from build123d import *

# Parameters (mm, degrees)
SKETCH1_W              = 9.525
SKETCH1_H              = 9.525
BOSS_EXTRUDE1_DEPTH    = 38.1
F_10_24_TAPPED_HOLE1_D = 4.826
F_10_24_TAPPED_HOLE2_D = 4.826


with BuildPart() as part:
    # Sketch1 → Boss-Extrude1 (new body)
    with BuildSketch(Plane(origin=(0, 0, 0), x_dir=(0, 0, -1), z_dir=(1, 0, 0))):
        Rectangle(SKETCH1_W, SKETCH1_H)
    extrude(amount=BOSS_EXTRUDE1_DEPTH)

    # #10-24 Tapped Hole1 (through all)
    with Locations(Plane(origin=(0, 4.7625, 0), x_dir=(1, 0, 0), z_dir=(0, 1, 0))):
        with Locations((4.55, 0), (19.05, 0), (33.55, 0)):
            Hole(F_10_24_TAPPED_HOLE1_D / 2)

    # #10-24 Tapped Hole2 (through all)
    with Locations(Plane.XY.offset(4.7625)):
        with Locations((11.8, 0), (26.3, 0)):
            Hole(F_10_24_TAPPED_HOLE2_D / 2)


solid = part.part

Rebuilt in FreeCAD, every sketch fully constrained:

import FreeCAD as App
import Part
import Sketcher
from FreeCAD import Vector
Q = App.Units.Quantity

doc = App.newDocument("Part")
body = doc.addObject("PartDesign::Body", "Body")

sketch1 = body.newObject("Sketcher::SketchObject", "Sketch")
sketch1.AttachmentSupport = (doc.getObject("YZ_Plane"), [""])
sketch1.MapMode = "FlatFace"
sketch1.addGeometry([
    Part.LineSegment(Vector(5, 5, 0), Vector(-5, 5, 0)),
    Part.LineSegment(Vector(-5, 5, 0), Vector(-5, -5, 0)),
    Part.LineSegment(Vector(-5, -5, 0), Vector(5, -5, 0)),
    Part.LineSegment(Vector(5, -5, 0), Vector(5, 5, 0)),
], False)
sketch1.addConstraint([
    Sketcher.Constraint("Coincident", 0, 2, 1, 1),
    Sketcher.Constraint("Coincident", 1, 2, 2, 1),
    Sketcher.Constraint("Coincident", 2, 2, 3, 1),
    Sketcher.Constraint("Coincident", 3, 2, 0, 1),
    Sketcher.Constraint("Horizontal", 0),
    Sketcher.Constraint("Vertical", 1),
    Sketcher.Constraint("Horizontal", 2),
    Sketcher.Constraint("Vertical", 3),
    Sketcher.Constraint("Symmetric", 0, 2, 2, 2, -1, 1),
    Sketcher.Constraint("Equal", 2, 1),
    Sketcher.Constraint("DistanceX", 0, 2, 0, 1, Q("0.375 in")),
])
pad1 = body.newObject("PartDesign::Pad", "Pad")
pad1.Profile = sketch1
pad1.Length = Q("1.5 in")

sketch2 = body.newObject("Sketcher::SketchObject", "Sketch001")
sketch2.AttachmentSupport = (doc.getObject("XZ_Plane"), [""])
sketch2.MapMode = "FlatFace"
sketch2.AttachmentOffset = App.Placement(Vector(0, 0, -0.1875 * 25.4), App.Rotation())
sketch2.addGeometry([
    Part.Circle(Vector(4.5, 0, 0), Vector(0, 0, 1), 2.4),
    Part.Circle(Vector(19.1, 0, 0), Vector(0, 0, 1), 2.4),
    Part.Circle(Vector(33.5, 0, 0), Vector(0, 0, 1), 2.4),
], False)
sketch2.addConstraint([
    Sketcher.Constraint("Equal", 0, 1),
    Sketcher.Constraint("Equal", 1, 2),
    Sketcher.Constraint("PointOnObject", 0, 3, -1),
    Sketcher.Constraint("PointOnObject", 1, 3, -1),
    Sketcher.Constraint("PointOnObject", 2, 3, -1),
    Sketcher.Constraint("Diameter", 0, Q("0.19 in")),
    Sketcher.Constraint("DistanceX", -1, 1, 1, 3, Q("0.75 in")),
    Sketcher.Constraint("DistanceX", -1, 1, 0, 3, 4.55),
    Sketcher.Constraint("DistanceX", -1, 1, 2, 3, 33.55),
])
doc.recompute()
hole = body.newObject("PartDesign::Hole", "Hole")
hole.Profile = sketch2
hole.ThreadType = "None"
hole.Diameter = Q("0.19 in")
hole.DepthType = "ThroughAll"
hole.Reversed = True

sketch3 = body.newObject("Sketcher::SketchObject", "Sketch002")
sketch3.AttachmentSupport = (doc.getObject("XY_Plane"), [""])
sketch3.MapMode = "FlatFace"
sketch3.AttachmentOffset = App.Placement(Vector(0, 0, 0.1875 * 25.4), App.Rotation())
sketch3.addGeometry([
    Part.Circle(Vector(11.8, 0, 0), Vector(0, 0, 1), 2.4),
    Part.Circle(Vector(26.3, 0, 0), Vector(0, 0, 1), 2.4),
], False)
sketch3.addConstraint([
    Sketcher.Constraint("Equal", 0, 1),
    Sketcher.Constraint("PointOnObject", 0, 3, -1),
    Sketcher.Constraint("PointOnObject", 1, 3, -1),
    Sketcher.Constraint("Diameter", 0, Q("0.19 in")),
    Sketcher.Constraint("DistanceX", -1, 1, 0, 3, 11.8),
    Sketcher.Constraint("DistanceX", -1, 1, 1, 3, 26.3),
])
doc.recompute()
hole2 = body.newObject("PartDesign::Hole", "Hole001")
hole2.Profile = sketch3
hole2.ThreadType = "None"
hole2.Diameter = Q("0.19 in")
hole2.DepthType = "ThroughAll"

doc.recompute()
